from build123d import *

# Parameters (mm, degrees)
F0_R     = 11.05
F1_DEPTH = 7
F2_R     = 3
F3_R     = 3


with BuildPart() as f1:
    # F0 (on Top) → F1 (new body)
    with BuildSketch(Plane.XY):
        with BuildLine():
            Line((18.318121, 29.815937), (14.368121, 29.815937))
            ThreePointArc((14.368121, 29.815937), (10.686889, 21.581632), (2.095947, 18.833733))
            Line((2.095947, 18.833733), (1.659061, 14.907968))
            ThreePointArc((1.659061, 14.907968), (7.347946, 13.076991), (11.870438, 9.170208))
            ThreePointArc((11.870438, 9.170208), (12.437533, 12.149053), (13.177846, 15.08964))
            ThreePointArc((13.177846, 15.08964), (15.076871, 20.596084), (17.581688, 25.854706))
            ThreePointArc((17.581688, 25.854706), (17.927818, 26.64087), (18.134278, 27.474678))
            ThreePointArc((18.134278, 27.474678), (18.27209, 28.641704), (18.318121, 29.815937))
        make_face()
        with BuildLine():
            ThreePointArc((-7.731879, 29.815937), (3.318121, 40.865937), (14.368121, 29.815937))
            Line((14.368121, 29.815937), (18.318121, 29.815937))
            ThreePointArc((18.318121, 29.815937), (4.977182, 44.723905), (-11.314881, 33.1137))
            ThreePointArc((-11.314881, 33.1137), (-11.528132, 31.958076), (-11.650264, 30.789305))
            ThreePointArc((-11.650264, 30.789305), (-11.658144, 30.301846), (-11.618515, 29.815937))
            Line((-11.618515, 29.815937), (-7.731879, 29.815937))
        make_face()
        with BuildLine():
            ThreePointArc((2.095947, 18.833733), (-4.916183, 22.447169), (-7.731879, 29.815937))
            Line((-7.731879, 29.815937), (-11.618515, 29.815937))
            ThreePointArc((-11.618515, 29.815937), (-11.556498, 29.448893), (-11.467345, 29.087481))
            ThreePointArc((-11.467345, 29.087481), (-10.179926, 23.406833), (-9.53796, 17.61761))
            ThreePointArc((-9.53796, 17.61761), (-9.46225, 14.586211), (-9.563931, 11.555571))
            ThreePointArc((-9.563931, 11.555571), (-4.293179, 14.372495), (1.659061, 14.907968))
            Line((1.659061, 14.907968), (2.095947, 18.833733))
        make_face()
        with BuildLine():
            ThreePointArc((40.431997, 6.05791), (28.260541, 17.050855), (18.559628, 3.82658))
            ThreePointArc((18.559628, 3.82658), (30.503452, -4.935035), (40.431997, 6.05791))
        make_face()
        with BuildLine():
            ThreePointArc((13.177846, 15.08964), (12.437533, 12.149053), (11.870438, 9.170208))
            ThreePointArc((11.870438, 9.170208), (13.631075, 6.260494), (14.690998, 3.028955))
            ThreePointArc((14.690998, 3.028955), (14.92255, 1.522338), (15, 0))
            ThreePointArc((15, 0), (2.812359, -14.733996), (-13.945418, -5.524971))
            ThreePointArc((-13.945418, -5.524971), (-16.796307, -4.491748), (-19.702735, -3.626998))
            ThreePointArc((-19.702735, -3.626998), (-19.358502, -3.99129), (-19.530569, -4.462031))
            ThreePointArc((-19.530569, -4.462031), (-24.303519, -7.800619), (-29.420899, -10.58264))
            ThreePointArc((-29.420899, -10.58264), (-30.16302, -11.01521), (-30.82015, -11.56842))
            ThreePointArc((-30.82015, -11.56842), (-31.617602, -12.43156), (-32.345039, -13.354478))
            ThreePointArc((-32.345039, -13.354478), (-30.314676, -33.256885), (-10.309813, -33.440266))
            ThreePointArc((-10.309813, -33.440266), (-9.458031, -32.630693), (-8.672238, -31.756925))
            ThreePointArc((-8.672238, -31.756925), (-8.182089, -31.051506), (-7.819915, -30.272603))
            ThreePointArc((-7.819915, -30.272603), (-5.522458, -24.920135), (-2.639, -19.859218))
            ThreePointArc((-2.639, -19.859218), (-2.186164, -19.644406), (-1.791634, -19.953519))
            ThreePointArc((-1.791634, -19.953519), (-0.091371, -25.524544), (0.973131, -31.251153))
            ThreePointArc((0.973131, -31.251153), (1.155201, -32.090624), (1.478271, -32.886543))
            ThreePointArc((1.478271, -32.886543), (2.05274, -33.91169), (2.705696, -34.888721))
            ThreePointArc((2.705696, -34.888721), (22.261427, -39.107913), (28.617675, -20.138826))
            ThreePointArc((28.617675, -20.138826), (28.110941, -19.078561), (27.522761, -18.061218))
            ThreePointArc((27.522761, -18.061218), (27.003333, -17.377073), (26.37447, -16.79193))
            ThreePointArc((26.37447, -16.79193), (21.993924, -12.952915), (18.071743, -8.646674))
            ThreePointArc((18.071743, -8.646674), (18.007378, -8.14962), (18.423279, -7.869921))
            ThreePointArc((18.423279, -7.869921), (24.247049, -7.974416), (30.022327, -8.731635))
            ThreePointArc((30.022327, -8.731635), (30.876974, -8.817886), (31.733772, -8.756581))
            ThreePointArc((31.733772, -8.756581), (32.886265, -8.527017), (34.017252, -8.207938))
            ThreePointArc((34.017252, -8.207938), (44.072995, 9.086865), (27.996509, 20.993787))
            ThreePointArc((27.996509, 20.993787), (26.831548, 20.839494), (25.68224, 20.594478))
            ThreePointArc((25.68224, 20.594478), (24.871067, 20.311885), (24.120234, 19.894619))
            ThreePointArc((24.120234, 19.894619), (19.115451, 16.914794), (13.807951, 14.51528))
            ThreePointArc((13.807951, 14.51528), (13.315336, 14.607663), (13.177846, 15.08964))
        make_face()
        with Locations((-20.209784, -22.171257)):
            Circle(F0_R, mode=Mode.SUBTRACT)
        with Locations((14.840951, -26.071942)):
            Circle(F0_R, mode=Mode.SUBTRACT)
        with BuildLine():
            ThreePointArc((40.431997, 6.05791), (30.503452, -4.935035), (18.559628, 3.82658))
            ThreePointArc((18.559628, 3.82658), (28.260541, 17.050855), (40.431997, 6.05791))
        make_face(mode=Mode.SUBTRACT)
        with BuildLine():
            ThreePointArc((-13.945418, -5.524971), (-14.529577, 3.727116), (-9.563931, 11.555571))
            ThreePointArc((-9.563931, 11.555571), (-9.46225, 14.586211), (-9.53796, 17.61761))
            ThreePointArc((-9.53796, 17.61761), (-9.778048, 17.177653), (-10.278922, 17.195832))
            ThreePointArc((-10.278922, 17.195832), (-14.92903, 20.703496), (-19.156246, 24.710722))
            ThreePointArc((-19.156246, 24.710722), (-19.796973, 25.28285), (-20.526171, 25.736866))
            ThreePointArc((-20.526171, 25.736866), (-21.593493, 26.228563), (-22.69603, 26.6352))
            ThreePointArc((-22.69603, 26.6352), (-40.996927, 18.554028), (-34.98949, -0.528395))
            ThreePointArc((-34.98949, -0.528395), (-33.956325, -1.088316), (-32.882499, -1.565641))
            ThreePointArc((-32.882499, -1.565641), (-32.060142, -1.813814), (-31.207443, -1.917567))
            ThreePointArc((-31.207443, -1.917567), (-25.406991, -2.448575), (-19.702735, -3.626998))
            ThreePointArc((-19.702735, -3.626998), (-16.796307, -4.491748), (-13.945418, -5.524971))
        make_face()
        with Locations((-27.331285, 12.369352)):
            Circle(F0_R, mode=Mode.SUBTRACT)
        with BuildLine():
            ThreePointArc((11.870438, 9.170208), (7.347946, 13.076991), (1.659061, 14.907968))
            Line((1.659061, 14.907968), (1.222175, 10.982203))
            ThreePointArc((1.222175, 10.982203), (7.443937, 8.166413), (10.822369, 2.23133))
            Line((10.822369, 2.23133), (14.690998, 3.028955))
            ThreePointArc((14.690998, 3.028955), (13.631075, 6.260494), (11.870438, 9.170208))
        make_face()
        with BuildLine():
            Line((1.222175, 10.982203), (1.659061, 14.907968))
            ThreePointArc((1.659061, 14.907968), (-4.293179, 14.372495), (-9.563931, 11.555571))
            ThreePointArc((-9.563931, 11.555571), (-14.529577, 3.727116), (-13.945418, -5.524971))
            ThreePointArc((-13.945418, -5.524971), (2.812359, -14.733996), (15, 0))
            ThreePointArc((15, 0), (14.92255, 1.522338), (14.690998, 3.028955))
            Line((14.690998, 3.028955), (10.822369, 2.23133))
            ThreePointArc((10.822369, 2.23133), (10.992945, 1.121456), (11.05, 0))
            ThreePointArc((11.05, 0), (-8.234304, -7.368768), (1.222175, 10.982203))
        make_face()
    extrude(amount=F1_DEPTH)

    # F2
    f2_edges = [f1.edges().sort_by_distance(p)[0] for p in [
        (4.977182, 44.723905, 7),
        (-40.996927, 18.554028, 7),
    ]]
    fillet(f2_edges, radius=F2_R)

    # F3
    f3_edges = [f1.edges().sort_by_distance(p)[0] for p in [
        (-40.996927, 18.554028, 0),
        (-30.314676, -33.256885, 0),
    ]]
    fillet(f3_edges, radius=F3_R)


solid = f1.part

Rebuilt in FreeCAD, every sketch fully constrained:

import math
import FreeCAD as App
import Part
import Sketcher


def edges_at(feature, points):
    """Names of the edges that pass closest to the given points."""
    edges = feature.Shape.Edges
    near = lambda p: min(range(len(edges)), key=lambda i: edges[i].distToShape(Part.Vertex(*p))[0])
    return sorted({f"Edge{near(p) + 1}" for p in points})

doc = App.newDocument("Part")
body = doc.addObject("PartDesign::Body", "Body")

sketch1 = body.newObject("Sketcher::SketchObject", "Sketch")
sketch1.AttachmentSupport = (doc.getObject("XY_Plane"), [""])
sketch1.MapMode = "FlatFace"
sketch1.addGeometry(Part.ArcOfCircle(Part.Circle(App.Vector(-61.296936, 14.808271, 0), App.Vector(0, 0, 1), 51.835162), math.radians(3.106814), math.radians(15.99023)), False)
sketch1.addGeometry(Part.ArcOfCircle(Part.Circle(App.Vector(-10.013784, 17.591784, 0), App.Vector(0, 0, 1), 0.476525), math.radians(-123.807126), math.radians(3.106809)), False)
sketch1.addGeometry(Part.ArcOfCircle(Part.Circle(App.Vector(18.562011, 60.266393, 0), App.Vector(0, 0, 1), 51.835052), math.radians(-136.69052), math.radians(-123.807077)), False)
sketch1.addGeometry(Part.ArcOfCircle(Part.Circle(App.Vector(-22.794541, 21.281029, 0), App.Vector(0, 0, 1), 4.999998), math.radians(43.30948), math.radians(63.020339)), False)
sketch1.addGeometry(Part.ArcOfCircle(Part.Circle(App.Vector(-27.331372, 12.369141, 0), App.Vector(0, 0, 1), 15.000228), math.radians(63.020401), math.radians(71.999931)), False)
sketch1.addGeometry(Part.ArcOfCircle(Part.Circle(App.Vector(-27.331285, 12.369352, 0), App.Vector(0, 0, 1), 15), math.radians(72.000001), math.radians(239.299726)), False)
sketch1.addGeometry(Part.ArcOfCircle(Part.Circle(App.Vector(-27.331227, 12.369458, 0), App.Vector(0, 0, 1), 15.00012), math.radians(-120.700258), math.radians(-111.720665)), False)
sketch1.addGeometry(Part.ArcOfCircle(Part.Circle(App.Vector(-31.032102, 3.07933, 0), App.Vector(0, 0, 1), 4.999972), math.radians(-111.720639), math.radians(-92.00968)), False)
sketch1.addGeometry(Part.ArcOfCircle(Part.Circle(App.Vector(-33.025282, -53.720736, 0), App.Vector(0, 0, 1), 51.835054), math.radians(75.1068), math.radians(87.990242)), False)
sketch1.addGeometry(Part.ArcOfCircle(Part.Circle(App.Vector(-19.82521, -4.087515, 0), App.Vector(0, 0, 1), 0.476525), math.radians(-51.806972), math.radians(75.106814)), False)
sketch1.addGeometry(Part.ArcOfCircle(Part.Circle(App.Vector(-51.580807, 36.27692, 0), App.Vector(0, 0, 1), 51.835123), math.radians(-64.690511), math.radians(-51.807084)), False)
sketch1.addGeometry(Part.ArcOfCircle(Part.Circle(App.Vector(-27.283358, -15.102705, 0), App.Vector(0, 0, 1), 5.000007), math.radians(115.309494), math.radians(135.020317)), False)
sketch1.addGeometry(Part.ArcOfCircle(Part.Circle(App.Vector(-20.209755, -22.171278, 0), App.Vector(0, 0, 1), 15.000036), math.radians(135.020357), math.radians(144)), False)
sketch1.addGeometry(Part.ArcOfCircle(Part.Circle(App.Vector(-20.209784, -22.171257, 0), App.Vector(0, 0, 1), 15), math.radians(144.000001), math.radians(311.299726)), False)
sketch1.addGeometry(Part.ArcOfCircle(Part.Circle(App.Vector(-20.209784, -22.171254, 0), App.Vector(0, 0, 1), 15.000002), math.radians(-48.70028), math.radians(-39.720618)), False)
sketch1.addGeometry(Part.ArcOfCircle(Part.Circle(App.Vector(-12.518092, -28.5617, 0), App.Vector(0, 0, 1), 5.000006), math.radians(-39.720592), math.radians(-20.009763)), False)
sketch1.addGeometry(Part.ArcOfCircle(Part.Circle(App.Vector(40.886124, -48.009546, 0), App.Vector(0, 0, 1), 51.835098), math.radians(147.10681), math.radians(159.990242)), False)
sketch1.addGeometry(Part.ArcOfCircle(Part.Circle(App.Vector(-2.23887, -20.118007, 0), App.Vector(0, 0, 1), 0.476525), math.radians(20.192976), math.radians(147.106707)), False)
sketch1.addGeometry(Part.ArcOfCircle(Part.Circle(App.Vector(-50.440764, -37.846083, 0), App.Vector(0, 0, 1), 51.835139), math.radians(7.309493), math.radians(20.192914)), False)
sketch1.addGeometry(Part.ArcOfCircle(Part.Circle(App.Vector(5.932474, -30.615018, 0), App.Vector(0, 0, 1), 4.999976), math.radians(-172.69058), math.radians(-152.979628)), False)
sketch1.addGeometry(Part.ArcOfCircle(Part.Circle(App.Vector(14.841094, -26.071855, 0), App.Vector(0, 0, 1), 15.000167), math.radians(-152.979615), math.radians(-144.000051)), False)
sketch1.addGeometry(Part.ArcOfCircle(Part.Circle(App.Vector(14.840951, -26.071942, 0), App.Vector(0, 0, 1), 15), math.radians(-144), math.radians(23.299725)), False)
sketch1.addGeometry(Part.ArcOfCircle(Part.Circle(App.Vector(14.8411, -26.07186, 0), App.Vector(0, 0, 1), 14.99983), math.radians(23.299661), math.radians(32.279429)), False)
sketch1.addGeometry(Part.ArcOfCircle(Part.Circle(App.Vector(23.295482, -20.731467, 0), App.Vector(0, 0, 1), 5.000012), math.radians(32.279405), math.radians(51.990203)), False)
sketch1.addGeometry(Part.ArcOfCircle(Part.Circle(App.Vector(58.294323, 24.049274, 0), App.Vector(0, 0, 1), 51.835133), math.radians(-140.893186), math.radians(-128.009762)), False)
sketch1.addGeometry(Part.ArcOfCircle(Part.Circle(App.Vector(18.441513, -8.346097, 0), App.Vector(0, 0, 1), 0.476525), math.radians(92.192883), math.radians(219.106846)), False)
sketch1.addGeometry(Part.ArcOfCircle(Part.Circle(App.Vector(20.406715, -59.667001, 0), App.Vector(0, 0, 1), 51.835041), math.radians(79.309476), math.radians(92.192923)), False)
sketch1.addGeometry(Part.ArcOfCircle(Part.Circle(App.Vector(30.949847, -3.8184, 0), App.Vector(0, 0, 1), 5.000017), math.radians(-100.690476), math.radians(-80.979691)), False)
sketch1.addGeometry(Part.ArcOfCircle(Part.Circle(App.Vector(29.381978, 6.058004, 0), App.Vector(0, 0, 1), 15.000096), math.radians(-80.979651), math.radians(-72.000044)), False)
sketch1.addGeometry(Part.ArcOfCircle(Part.Circle(App.Vector(29.381997, 6.05791, 0), App.Vector(0, 0, 1), 15), math.radians(-71.999998), math.radians(95.299727)), False)
sketch1.addGeometry(Part.ArcOfCircle(Part.Circle(App.Vector(29.381975, 6.058024, 0), App.Vector(0, 0, 1), 14.999884), math.radians(95.299684), math.radians(104.279417)), False)
sketch1.addGeometry(Part.ArcOfCircle(Part.Circle(App.Vector(26.915485, 15.748976, 0), App.Vector(0, 0, 1), 4.999978), math.radians(104.279364), math.radians(123.990302)), False)
sketch1.addGeometry(Part.ArcOfCircle(Part.Circle(App.Vector(-4.858282, 62.872841, 0), App.Vector(0, 0, 1), 51.835142), math.radians(-68.89319), math.radians(-56.009769)), False)
sketch1.addGeometry(Part.ArcOfCircle(Part.Circle(App.Vector(13.636351, 14.959835, 0), App.Vector(0, 0, 1), 0.476525), math.radians(164.192978), math.radians(291.106762)), False)
sketch1.addGeometry(Part.ArcOfCircle(Part.Circle(App.Vector(63.052736, 0.96981, 0), App.Vector(0, 0, 1), 51.835068), math.radians(151.309478), math.radians(164.192918)), False)
sketch1.addGeometry(Part.ArcOfCircle(Part.Circle(App.Vector(13.195572, 28.255091, 0), App.Vector(0, 0, 1), 4.999986), math.radians(-28.690518), math.radians(-8.979612)), False)
sketch1.addGeometry(Part.ArcOfCircle(Part.Circle(App.Vector(3.31824, 29.815927, 0), App.Vector(0, 0, 1), 14.999881), math.radians(-8.9797), math.radians(0.000037)), False)
sketch1.addGeometry(Part.ArcOfCircle(Part.Circle(App.Vector(3.318121, 29.815937, 0), App.Vector(0, 0, 1), 15), math.radians(0), math.radians(167.299726)), False)
sketch1.addGeometry(Part.ArcOfCircle(Part.Circle(App.Vector(3.318163, 29.81593, 0), App.Vector(0, 0, 1), 15.000042), math.radians(167.299733), math.radians(176.279376)), False)
sketch1.addGeometry(Part.ArcOfCircle(Part.Circle(App.Vector(-6.660659, 30.464853, 0), App.Vector(0, 0, 1), 5.000143), math.radians(176.279541), math.radians(187.456844)), False)
sketch1.addGeometry(Part.ArcOfCircle(Part.Circle(App.Vector(-6.660956, 30.464822, 0), App.Vector(0, 0, 1), 4.999845), math.radians(-172.543064), math.radians(-164.009575)), False)
sketch1.addGeometry(Part.Circle(App.Vector(-20.209784, -22.171257, 0), App.Vector(0, 0, 1), 11.05), False)
sketch1.addGeometry(Part.ArcOfCircle(Part.Circle(App.Vector(0, 0, 0), App.Vector(0, 0, 1), 11.05), math.radians(11.649863), math.radians(83.649863)), False)
sketch1.addGeometry(Part.ArcOfCircle(Part.Circle(App.Vector(0.00001, 0.000002, 0), App.Vector(0, 0, 1), 11.04999), math.radians(-0.00001), math.radians(11.649862)), False)
sketch1.addGeometry(Part.ArcOfCircle(Part.Circle(App.Vector(0, 0, 0), App.Vector(0, 0, 1), 11.05), math.radians(83.649861), math.radians(360.000001)), False)
sketch1.addGeometry(Part.Circle(App.Vector(14.840951, -26.071942, 0), App.Vector(0, 0, 1), 11.05), False)
sketch1.addGeometry(Part.Circle(App.Vector(-27.331285, 12.369352, 0), App.Vector(0, 0, 1), 11.05), False)
sketch1.addGeometry(Part.ArcOfCircle(Part.Circle(App.Vector(29.381997, 6.05791, 0), App.Vector(0, 0, 1), 11.05), math.radians(0), math.radians(191.649862)), False)
sketch1.addGeometry(Part.ArcOfCircle(Part.Circle(App.Vector(29.381997, 6.05791, 0), App.Vector(0, 0, 1), 11.05), math.radians(-168.350138), math.radians(0)), False)
sketch1.addGeometry(Part.ArcOfCircle(Part.Circle(App.Vector(3.318122, 29.815935, 0), App.Vector(0, 0, 1), 11.049999), math.radians(-96.350139), math.radians(0.000009)), False)
sketch1.addGeometry(Part.ArcOfCircle(Part.Circle(App.Vector(3.318122, 29.815937, 0), App.Vector(0, 0, 1), 11.050001), math.radians(180), math.radians(263.649863)), False)
sketch1.addGeometry(Part.ArcOfCircle(Part.Circle(App.Vector(3.318121, 29.815937, 0), App.Vector(0, 0, 1), 11.05), math.radians(0), math.radians(180)), False)
sketch1.addConstraint(Sketcher.Constraint("Coincident", 0, 1, 1, 2))
sketch1.addConstraint(Sketcher.Constraint("Coincident", 1, 1, 2, 2))
sketch1.addConstraint(Sketcher.Constraint("Coincident", 2, 1, 3, 1))
sketch1.addConstraint(Sketcher.Constraint("Coincident", 3, 2, 4, 1))
sketch1.addConstraint(Sketcher.Constraint("Coincident", 4, 2, 5, 1))
sketch1.addConstraint(Sketcher.Constraint("Coincident", 5, 2, 6, 1))
sketch1.addConstraint(Sketcher.Constraint("Coincident", 6, 2, 7, 1))
sketch1.addConstraint(Sketcher.Constraint("Coincident", 7, 2, 8, 2))
sketch1.addConstraint(Sketcher.Constraint("Coincident", 8, 1, 9, 2))
sketch1.addConstraint(Sketcher.Constraint("Coincident", 9, 1, 10, 2))
sketch1.addConstraint(Sketcher.Constraint("Coincident", 10, 1, 11, 1))
sketch1.addConstraint(Sketcher.Constraint("Coincident", 11, 2, 12, 1))
sketch1.addConstraint(Sketcher.Constraint("Coincident", 12, 2, 13, 1))
sketch1.addConstraint(Sketcher.Constraint("Coincident", 13, 2, 14, 1))
sketch1.addConstraint(Sketcher.Constraint("Coincident", 14, 2, 15, 1))
sketch1.addConstraint(Sketcher.Constraint("Coincident", 15, 2, 16, 2))
sketch1.addConstraint(Sketcher.Constraint("Coincident", 16, 1, 17, 2))
sketch1.addConstraint(Sketcher.Constraint("Coincident", 17, 1, 18, 2))
sketch1.addConstraint(Sketcher.Constraint("Coincident", 18, 1, 19, 1))
sketch1.addConstraint(Sketcher.Constraint("Coincident", 19, 2, 20, 1))
sketch1.addConstraint(Sketcher.Constraint("Coincident", 20, 2, 21, 1))
sketch1.addConstraint(Sketcher.Constraint("Coincident", 21, 2, 22, 1))
sketch1.addConstraint(Sketcher.Constraint("Coincident", 22, 2, 23, 1))
sketch1.addConstraint(Sketcher.Constraint("Coincident", 23, 2, 24, 2))
sketch1.addConstraint(Sketcher.Constraint("Coincident", 24, 1, 25, 2))
sketch1.addConstraint(Sketcher.Constraint("Coincident", 25, 1, 26, 2))
sketch1.addConstraint(Sketcher.Constraint("Coincident", 26, 1, 27, 1))
sketch1.addConstraint(Sketcher.Constraint("Coincident", 27, 2, 28, 1))
sketch1.addConstraint(Sketcher.Constraint("Coincident", 28, 2, 29, 1))
sketch1.addConstraint(Sketcher.Constraint("Coincident", 29, 2, 30, 1))
sketch1.addConstraint(Sketcher.Constraint("Coincident", 30, 2, 31, 1))
sketch1.addConstraint(Sketcher.Constraint("Coincident", 31, 2, 32, 2))
sketch1.addConstraint(Sketcher.Constraint("Coincident", 32, 1, 33, 2))
sketch1.addConstraint(Sketcher.Constraint("Coincident", 33, 1, 34, 2))
sketch1.addConstraint(Sketcher.Constraint("Coincident", 34, 1, 35, 1))
sketch1.addConstraint(Sketcher.Constraint("Coincident", 35, 2, 36, 1))
sketch1.addConstraint(Sketcher.Constraint("Coincident", 36, 2, 37, 1))
sketch1.addConstraint(Sketcher.Constraint("Coincident", 37, 2, 38, 1))
sketch1.addConstraint(Sketcher.Constraint("Coincident", 38, 2, 39, 1))
sketch1.addConstraint(Sketcher.Constraint("Coincident", 39, 2, 40, 1))
sketch1.addConstraint(Sketcher.Constraint("Coincident", 40, 2, 0, 2))
sketch1.addConstraint(Sketcher.Constraint("Coincident", 42, 1, 43, 2))
sketch1.addConstraint(Sketcher.Constraint("Coincident", 43, 1, 44, 2))
sketch1.addConstraint(Sketcher.Constraint("Coincident", 44, 1, 42, 2))
sketch1.addConstraint(Sketcher.Constraint("Coincident", 47, 1, 48, 2))
sketch1.addConstraint(Sketcher.Constraint("Coincident", 48, 1, 47, 2))
sketch1.addConstraint(Sketcher.Constraint("Coincident", 49, 1, 50, 2))
sketch1.addConstraint(Sketcher.Constraint("Coincident", 50, 1, 51, 2))
sketch1.addConstraint(Sketcher.Constraint("Coincident", 51, 1, 49, 2))
sketch1.addConstraint(Sketcher.Constraint("Coincident", 42, 3, -1, 1))
sketch1.addConstraint(Sketcher.Constraint("Coincident", 44, 3, -1, 1))
sketch1.addConstraint(Sketcher.Constraint("Coincident", 14, 3, 13, 3))
sketch1.addConstraint(Sketcher.Constraint("Coincident", 22, 3, 20, 3))
sketch1.addConstraint(Sketcher.Constraint("Coincident", 41, 3, 13, 3))
sketch1.addConstraint(Sketcher.Constraint("Coincident", 45, 3, 21, 3))
sketch1.addConstraint(Sketcher.Constraint("Coincident", 46, 3, 5, 3))
sketch1.addConstraint(Sketcher.Constraint("Coincident", 47, 3, 29, 3))
sketch1.addConstraint(Sketcher.Constraint("Coincident", 49, 3, 37, 3))
sketch1.addConstraint(Sketcher.Constraint("Coincident", 50, 3, 37, 3))
sketch1.addConstraint(Sketcher.Constraint("PointOnObject", 43, 3, -1))
sketch1.addConstraint(Sketcher.Constraint("PointOnObject", 43, 1, -1))
sketch1.addConstraint(Sketcher.Constraint("Radius", 3, 4.999998))
sketch1.addConstraint(Sketcher.Constraint("Radius", 5, 15.0))
sketch1.addConstraint(Sketcher.Constraint("Radius", 13, 15.0))
sketch1.addConstraint(Sketcher.Constraint("Radius", 21, 15.0))
sketch1.addConstraint(Sketcher.Constraint("Radius", 29, 15.0))
sketch1.addConstraint(Sketcher.Constraint("Radius", 37, 15.0))
sketch1.addConstraint(Sketcher.Constraint("Diameter", 41, 22.1))
sketch1.addConstraint(Sketcher.Constraint("Diameter", 45, 22.1))
sketch1.addConstraint(Sketcher.Constraint("Diameter", 46, 22.1))
sketch1.addConstraint(Sketcher.Constraint("Radius", 42, 11.05))
sketch1.addConstraint(Sketcher.Constraint("Radius", 47, 11.05))
sketch1.addConstraint(Sketcher.Constraint("Radius", 48, 11.05))
sketch1.addConstraint(Sketcher.Constraint("Radius", 49, 11.049999))
sketch1.addConstraint(Sketcher.Constraint("Radius", 16, 51.835098))
sketch1.addConstraint(Sketcher.Constraint("Radius", 0, 51.835162))
sketch1.addConstraint(Sketcher.Constraint("Radius", 6, 15.00012))
sketch1.addConstraint(Sketcher.Constraint("Radius", 7, 4.999972))
sketch1.addConstraint(Sketcher.Constraint("Radius", 18, 51.835139))
sketch1.addConstraint(Sketcher.Constraint("Radius", 22, 14.99983))
sketch1.addConstraint(Sketcher.Constraint("Radius", 23, 5.000012))
sketch1.addConstraint(Sketcher.Constraint("Radius", 26, 51.835041))
sketch1.addConstraint(Sketcher.Constraint("Radius", 36, 14.999881))
sketch1.addConstraint(Sketcher.Constraint("DistanceY", 26, 3, -1, 1, 59.667001))
sketch1.addConstraint(Sketcher.Constraint("DistanceY", 8, 1, -1, 1, 3.626998))
sketch1.addConstraint(Sketcher.Constraint("DistanceX", 16, 1, -1, 1, 2.639))
sketch1.addConstraint(Sketcher.Constraint("Radius", 1, 0.476525))
sketch1.addConstraint(Sketcher.Constraint("Radius", 2, 51.835052))
sketch1.addConstraint(Sketcher.Constraint("Radius", 4, 15.000228))
sketch1.addConstraint(Sketcher.Constraint("Radius", 8, 51.835054))
sketch1.addConstraint(Sketcher.Constraint("Radius", 9, 0.476525))
sketch1.addConstraint(Sketcher.Constraint("Radius", 10, 51.835123))
sketch1.addConstraint(Sketcher.Constraint("Radius", 11, 5.000007))
sketch1.addConstraint(Sketcher.Constraint("Radius", 12, 15.000036))
sketch1.addConstraint(Sketcher.Constraint("Radius", 15, 5.000006))
sketch1.addConstraint(Sketcher.Constraint("Radius", 17, 0.476525))
sketch1.addConstraint(Sketcher.Constraint("Radius", 19, 4.999976))
sketch1.addConstraint(Sketcher.Constraint("Radius", 20, 15.000167))
sketch1.addConstraint(Sketcher.Constraint("Radius", 24, 51.835133))
sketch1.addConstraint(Sketcher.Constraint("Radius", 25, 0.476525))
sketch1.addConstraint(Sketcher.Constraint("Radius", 27, 5.000017))
sketch1.addConstraint(Sketcher.Constraint("Radius", 28, 15.000096))
sketch1.addConstraint(Sketcher.Constraint("Radius", 30, 14.999884))
sketch1.addConstraint(Sketcher.Constraint("Radius", 31, 4.999978))
sketch1.addConstraint(Sketcher.Constraint("Radius", 32, 51.835142))
sketch1.addConstraint(Sketcher.Constraint("Radius", 33, 0.476525))
sketch1.addConstraint(Sketcher.Constraint("Radius", 34, 51.835068))
sketch1.addConstraint(Sketcher.Constraint("Radius", 35, 4.999986))
sketch1.addConstraint(Sketcher.Constraint("Radius", 38, 15.000042))
sketch1.addConstraint(Sketcher.Constraint("Radius", 39, 5.000143))
sketch1.addConstraint(Sketcher.Constraint("Radius", 40, 4.999845))
sketch1.addConstraint(Sketcher.Constraint("DistanceY", 15, 3, -1, 1, 28.5617))
sketch1.addConstraint(Sketcher.Constraint("DistanceX", -1, 1, 22, 3, 14.8411))
sketch1.addConstraint(Sketcher.Constraint("DistanceY", 27, 3, -1, 1, 3.8184))
sketch1.addConstraint(Sketcher.Constraint("DistanceY", -1, 1, 4, 2, 26.6352))
sketch1.addConstraint(Sketcher.Constraint("DistanceX", 6, 2, -1, 1, 32.882499))
sketch1.addConstraint(Sketcher.Constraint("DistanceX", 10, 1, -1, 1, 29.420899))
sketch1.addConstraint(Sketcher.Constraint("DistanceY", -1, 1, 37, 2, 33.1137))
sketch1.addConstraint(Sketcher.Constraint("DistanceY", -1, 1, 0, 3, 14.808271))
sketch1.addConstraint(Sketcher.Constraint("DistanceX", -1, 1, 2, 3, 18.562011))
sketch1.addConstraint(Sketcher.Constraint("DistanceX", 3, 3, -1, 1, 22.794541))
sketch1.addConstraint(Sketcher.Constraint("DistanceY", -1, 1, 3, 3, 21.281029))
sketch1.addConstraint(Sketcher.Constraint("DistanceY", -1, 1, 4, 3, 12.369141))
sketch1.addConstraint(Sketcher.Constraint("DistanceY", -1, 1, 6, 3, 12.369458))
sketch1.addConstraint(Sketcher.Constraint("DistanceY", -1, 1, 7, 3, 3.07933))
sketch1.addConstraint(Sketcher.Constraint("DistanceX", 9, 3, -1, 1, 19.82521))
sketch1.addConstraint(Sketcher.Constraint("DistanceY", -1, 1, 10, 3, 36.27692))
sketch1.addConstraint(Sketcher.Constraint("DistanceY", 12, 3, -1, 1, 22.171278))
sketch1.addConstraint(Sketcher.Constraint("DistanceX", 17, 3, -1, 1, 2.23887))
sketch1.addConstraint(Sketcher.Constraint("DistanceY", 22, 3, -1, 1, 26.07186))
sketch1.addConstraint(Sketcher.Constraint("DistanceX", -1, 1, 23, 3, 23.295482))
sketch1.addConstraint(Sketcher.Constraint("DistanceX", -1, 1, 28, 3, 29.381978))
sketch1.addConstraint(Sketcher.Constraint("DistanceY", -1, 1, 29, 3, 6.05791))
sketch1.addConstraint(Sketcher.Constraint("DistanceY", -1, 1, 32, 3, 62.872841))
sketch1.addConstraint(Sketcher.Constraint("DistanceX", -1, 1, 33, 3, 13.636351))
sketch1.addConstraint(Sketcher.Constraint("DistanceY", -1, 1, 34, 3, 0.96981))
sketch1.addConstraint(Sketcher.Constraint("DistanceY", -1, 1, 35, 3, 28.255091))
sketch1.addConstraint(Sketcher.Constraint("DistanceX", -1, 1, 36, 3, 3.31824))
sketch1.addConstraint(Sketcher.Constraint("DistanceY", -1, 1, 38, 3, 29.81593))
sketch1.addConstraint(Sketcher.Constraint("DistanceX", 39, 3, -1, 1, 6.660659))
sketch1.addConstraint(Sketcher.Constraint("DistanceY", -1, 1, 40, 3, 30.464822))
sketch1.addConstraint(Sketcher.Constraint("DistanceY", -1, 1, 46, 3, 12.369352))
sketch1.addConstraint(Sketcher.Constraint("DistanceX", 0, 1, -1, 1, 9.53796))
sketch1.addConstraint(Sketcher.Constraint("DistanceY", -1, 1, 0, 1, 17.61761))
sketch1.addConstraint(Sketcher.Constraint("DistanceY", -1, 1, 1, 1, 17.195832))
sketch1.addConstraint(Sketcher.Constraint("DistanceX", 3, 2, -1, 1, 20.526171))
sketch1.addConstraint(Sketcher.Constraint("DistanceX", 5, 2, -1, 1, 34.98949))
sketch1.addConstraint(Sketcher.Constraint("DistanceX", 9, 1, -1, 1, 19.530569))
sketch1.addConstraint(Sketcher.Constraint("DistanceY", 9, 1, -1, 1, 4.462031))
sketch1.addConstraint(Sketcher.Constraint("DistanceX", 11, 2, -1, 1, 30.82015))
sketch1.addConstraint(Sketcher.Constraint("DistanceY", 11, 2, -1, 1, 11.56842))
sketch1.addConstraint(Sketcher.Constraint("DistanceX", 12, 2, -1, 1, 32.345039))
sketch1.addConstraint(Sketcher.Constraint("DistanceX", 14, 2, -1, 1, 8.672238))
sketch1.addConstraint(Sketcher.Constraint("DistanceY", 16, 1, -1, 1, 19.859218))
sketch1.addConstraint(Sketcher.Constraint("DistanceY", 17, 1, -1, 1, 19.953519))
sketch1.addConstraint(Sketcher.Constraint("DistanceX", -1, 1, 18, 1, 0.973131))
sketch1.addConstraint(Sketcher.Constraint("DistanceX", -1, 1, 19, 2, 1.478271))
sketch1.addConstraint(Sketcher.Constraint("DistanceY", 20, 2, -1, 1, 34.888721))
sketch1.addConstraint(Sketcher.Constraint("DistanceX", -1, 1, 22, 2, 27.522761))
sketch1.addConstraint(Sketcher.Constraint("DistanceX", -1, 1, 23, 2, 26.37447))
sketch1.addConstraint(Sketcher.Constraint("DistanceX", -1, 1, 25, 1, 18.423279))
sketch1.addConstraint(Sketcher.Constraint("DistanceY", 25, 1, -1, 1, 7.869921))
sketch1.addConstraint(Sketcher.Constraint("DistanceY", 27, 2, -1, 1, 8.756581))
sketch1.addConstraint(Sketcher.Constraint("DistanceX", -1, 1, 28, 2, 34.017252))
sketch1.addConstraint(Sketcher.Constraint("DistanceX", -1, 1, 29, 2, 27.996509))
sketch1.addConstraint(Sketcher.Constraint("DistanceX", -1, 1, 30, 2, 25.68224))
sketch1.addConstraint(Sketcher.Constraint("DistanceY", -1, 1, 31, 2, 19.894619))
sketch1.addConstraint(Sketcher.Constraint("DistanceX", -1, 1, 32, 1, 13.807951))
sketch1.addConstraint(Sketcher.Constraint("DistanceY", -1, 1, 32, 1, 14.51528))
sketch1.addConstraint(Sketcher.Constraint("DistanceY", -1, 1, 33, 1, 15.08964))
sketch1.addConstraint(Sketcher.Constraint("DistanceY", -1, 1, 35, 2, 27.474678))
sketch1.addConstraint(Sketcher.Constraint("DistanceY", -1, 1, 40, 2, 29.087481))
sketch1.addConstraint(Sketcher.Constraint("DistanceX", -1, 1, 42, 1, 10.822369))
sketch1.addConstraint(Sketcher.Constraint("DistanceY", -1, 1, 47, 1, 6.05791))
sketch1.addConstraint(Sketcher.Constraint("DistanceY", -1, 1, 48, 1, 3.82658))
sketch1.addConstraint(Sketcher.Constraint("DistanceX", 13, 3, -1, 1, 20.209784))
sketch1.addConstraint(Sketcher.Constraint("DistanceX", 18, 3, -1, 1, 50.440764))
sketch1.addConstraint(Sketcher.Constraint("DistanceX", -1, 1, 24, 3, 58.294323))
sketch1.addConstraint(Sketcher.Constraint("DistanceX", -1, 1, 30, 3, 29.381975))
sketch1.addConstraint(Sketcher.Constraint("DistanceY", -1, 1, 51, 3, 29.815937))
sketch1.addConstraint(Sketcher.Constraint("DistanceX", 2, 1, -1, 1, 19.156246))
sketch1.addConstraint(Sketcher.Constraint("DistanceX", 7, 2, -1, 1, 31.207443))
sketch1.addConstraint(Sketcher.Constraint("DistanceX", 13, 2, -1, 1, 10.309813))
sketch1.addConstraint(Sketcher.Constraint("DistanceX", 15, 2, -1, 1, 7.819915))
sketch1.addConstraint(Sketcher.Constraint("DistanceX", -1, 1, 21, 2, 28.617675))
sketch1.addConstraint(Sketcher.Constraint("DistanceX", -1, 1, 24, 1, 18.071743))
sketch1.addConstraint(Sketcher.Constraint("DistanceX", -1, 1, 26, 1, 30.022327))
sketch1.addConstraint(Sketcher.Constraint("DistanceX", -1, 1, 34, 1, 17.581688))
sketch1.addConstraint(Sketcher.Constraint("DistanceY", -1, 1, 36, 2, 29.815937))
sketch1.addConstraint(Sketcher.Constraint("DistanceX", 38, 2, -1, 1, 11.650264))
sketch1.addConstraint(Sketcher.Constraint("DistanceX", 39, 2, -1, 1, 11.618515))
sketch1.addConstraint(Sketcher.Constraint("DistanceX", -1, 1, 44, 1, 1.222175))
sketch1.addConstraint(Sketcher.Constraint("DistanceX", -1, 1, 49, 1, 2.095947))
sketch1.addConstraint(Sketcher.Constraint("DistanceY", -1, 1, 50, 1, 29.815937))
sketch1.addConstraint(Sketcher.Constraint("DistanceY", -1, 1, 51, 1, 29.815937))
pad1 = body.newObject("PartDesign::Pad", "Pad")
pad1.Profile = sketch1
pad1.Length = 7
doc.recompute()

fillet = body.newObject("PartDesign::Fillet", "Fillet")
fillet.Base = (pad1, edges_at(pad1, [(4.977, 44.724, 7), (-40.997, 18.554, 7)]))
fillet.Radius = 3
doc.recompute()

fillet2 = body.newObject("PartDesign::Fillet", "Fillet001")
fillet2.Base = (fillet, edges_at(fillet, [(-40.997, 18.554, 0), (-30.315, -33.257, 0)]))
fillet2.Radius = 3

doc.recompute()
